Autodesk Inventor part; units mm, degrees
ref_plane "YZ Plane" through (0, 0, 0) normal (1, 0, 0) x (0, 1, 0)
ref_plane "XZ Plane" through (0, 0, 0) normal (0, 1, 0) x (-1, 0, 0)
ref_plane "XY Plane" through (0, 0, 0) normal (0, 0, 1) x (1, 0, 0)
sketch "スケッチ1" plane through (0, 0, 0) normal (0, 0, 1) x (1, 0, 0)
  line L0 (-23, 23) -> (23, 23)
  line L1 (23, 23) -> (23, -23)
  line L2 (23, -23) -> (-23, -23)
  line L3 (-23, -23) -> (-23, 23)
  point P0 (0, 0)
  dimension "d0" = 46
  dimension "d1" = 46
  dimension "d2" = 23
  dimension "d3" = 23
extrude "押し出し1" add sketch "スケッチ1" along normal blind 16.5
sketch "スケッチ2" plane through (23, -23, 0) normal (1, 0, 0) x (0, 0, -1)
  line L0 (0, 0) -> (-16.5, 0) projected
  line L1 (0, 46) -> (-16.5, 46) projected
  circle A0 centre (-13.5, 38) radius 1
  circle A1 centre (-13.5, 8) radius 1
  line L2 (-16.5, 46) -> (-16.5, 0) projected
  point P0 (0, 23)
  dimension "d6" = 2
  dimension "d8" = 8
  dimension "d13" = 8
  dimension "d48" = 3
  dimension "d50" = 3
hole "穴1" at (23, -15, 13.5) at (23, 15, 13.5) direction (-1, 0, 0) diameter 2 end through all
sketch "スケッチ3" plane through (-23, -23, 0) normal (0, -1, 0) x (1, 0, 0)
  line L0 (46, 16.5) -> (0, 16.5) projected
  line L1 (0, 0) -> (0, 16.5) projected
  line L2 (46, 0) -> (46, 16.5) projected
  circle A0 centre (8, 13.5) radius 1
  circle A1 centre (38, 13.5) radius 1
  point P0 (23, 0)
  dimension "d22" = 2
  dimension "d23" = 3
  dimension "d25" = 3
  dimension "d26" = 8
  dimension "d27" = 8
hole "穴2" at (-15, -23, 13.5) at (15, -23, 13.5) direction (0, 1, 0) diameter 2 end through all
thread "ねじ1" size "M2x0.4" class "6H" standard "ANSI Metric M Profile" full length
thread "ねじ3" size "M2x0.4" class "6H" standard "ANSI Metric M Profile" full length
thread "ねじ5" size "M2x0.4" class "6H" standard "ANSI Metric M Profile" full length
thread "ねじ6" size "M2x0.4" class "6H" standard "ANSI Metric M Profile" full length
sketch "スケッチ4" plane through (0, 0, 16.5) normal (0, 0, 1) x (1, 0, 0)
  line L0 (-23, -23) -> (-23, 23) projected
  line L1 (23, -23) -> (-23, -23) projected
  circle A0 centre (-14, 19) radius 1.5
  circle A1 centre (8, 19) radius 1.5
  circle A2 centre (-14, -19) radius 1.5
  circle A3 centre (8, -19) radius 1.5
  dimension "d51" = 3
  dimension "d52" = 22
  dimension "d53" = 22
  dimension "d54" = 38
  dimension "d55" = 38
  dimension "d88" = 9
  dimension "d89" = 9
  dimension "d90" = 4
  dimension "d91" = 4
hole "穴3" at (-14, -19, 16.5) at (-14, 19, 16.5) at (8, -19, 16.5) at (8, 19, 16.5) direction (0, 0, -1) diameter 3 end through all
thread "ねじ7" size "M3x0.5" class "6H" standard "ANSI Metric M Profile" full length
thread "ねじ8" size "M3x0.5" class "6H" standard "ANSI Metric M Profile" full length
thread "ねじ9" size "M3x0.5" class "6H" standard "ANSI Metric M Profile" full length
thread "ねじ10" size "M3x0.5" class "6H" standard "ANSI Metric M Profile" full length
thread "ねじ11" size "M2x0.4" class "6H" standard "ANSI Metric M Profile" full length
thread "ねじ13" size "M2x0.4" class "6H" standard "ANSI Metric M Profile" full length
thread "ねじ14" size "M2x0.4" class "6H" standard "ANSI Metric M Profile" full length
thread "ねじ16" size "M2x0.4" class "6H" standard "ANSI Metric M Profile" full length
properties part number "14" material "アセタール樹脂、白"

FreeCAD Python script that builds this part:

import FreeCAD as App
import Part
import Sketcher
Q = App.Units.Quantity

doc = App.newDocument("Part")
body = doc.addObject("PartDesign::Body", "Body")

# Sketch on XY plane
sketch1 = body.newObject("Sketcher::SketchObject", "Sketch")
sketch1.AttachmentSupport = (doc.getObject("XY_Plane"), [""])
sketch1.MapMode = "FlatFace"
sketch1.addGeometry([
    Part.LineSegment(App.Vector(23, 23, 0), App.Vector(-23, 23, 0)),
    Part.LineSegment(App.Vector(-23, 23, 0), App.Vector(-23, -23, 0)),
    Part.LineSegment(App.Vector(-23, -23, 0), App.Vector(23, -23, 0)),
    Part.LineSegment(App.Vector(23, -23, 0), App.Vector(23, 23, 0)),
], False)
sketch1.addConstraint([
    Sketcher.Constraint("Coincident", 0, 2, 1, 1),
    Sketcher.Constraint("Coincident", 1, 2, 2, 1),
    Sketcher.Constraint("Coincident", 2, 2, 3, 1),
    Sketcher.Constraint("Coincident", 3, 2, 0, 1),
    Sketcher.Constraint("Horizontal", 0),
    Sketcher.Constraint("Vertical", 1),
    Sketcher.Constraint("Horizontal", 2),
    Sketcher.Constraint("Vertical", 3),
    Sketcher.Constraint("Symmetric", 0, 2, 2, 2, -1, 1),
    Sketcher.Constraint("Equal", 2, 1),
    Sketcher.Constraint("DistanceX", 0, 2, 0, 1, Q("46 mm")),
])
pad1 = body.newObject("PartDesign::Pad", "Pad")
pad1.Profile = sketch1
pad1.Length = 16.5

# Sketch on YZ plane
sketch2 = body.newObject("Sketcher::SketchObject", "Sketch001")
sketch2.AttachmentSupport = (doc.getObject("YZ_Plane"), [""])
sketch2.MapMode = "FlatFace"
sketch2.AttachmentOffset = App.Placement(App.Vector(0, 0, 23), App.Rotation())
sketch2.addGeometry([
    Part.Circle(App.Vector(-15, 13.5, 0), App.Vector(0, 0, 1), 1),
    Part.Circle(App.Vector(15, 13.5, 0), App.Vector(0, 0, 1), 1),
], False)
sketch2.addConstraint([
    Sketcher.Constraint("Equal", 0, 1),
    Sketcher.Constraint("Symmetric", 0, 3, 1, 3, -2),
    Sketcher.Constraint("Diameter", 0, Q("2 mm")),
    Sketcher.Constraint("DistanceX", 0, 3, -1, 1, Q("15 mm")),
    Sketcher.Constraint("DistanceY", -1, 1, 0, 3, Q("13.5 mm")),
])
doc.recompute()
hole = body.newObject("PartDesign::Hole", "Hole")
hole.Profile = sketch2
hole.ThreadType = "None"
hole.Diameter = 2
hole.DepthType = "ThroughAll"

# Sketch on XZ plane
sketch3 = body.newObject("Sketcher::SketchObject", "Sketch002")
sketch3.AttachmentSupport = (doc.getObject("XZ_Plane"), [""])
sketch3.MapMode = "FlatFace"
sketch3.AttachmentOffset = App.Placement(App.Vector(0, 0, 23), App.Rotation())
sketch3.addGeometry([
    Part.Circle(App.Vector(-15, 13.5, 0), App.Vector(0, 0, 1), 1),
    Part.Circle(App.Vector(15, 13.5, 0), App.Vector(0, 0, 1), 1),
], False)
sketch3.addConstraint([
    Sketcher.Constraint("Equal", 0, 1),
    Sketcher.Constraint("Symmetric", 0, 3, 1, 3, -2),
    Sketcher.Constraint("Diameter", 0, Q("2 mm")),
    Sketcher.Constraint("DistanceX", 0, 3, -1, 1, Q("15 mm")),
    Sketcher.Constraint("DistanceY", -1, 1, 0, 3, Q("13.5 mm")),
])
doc.recompute()
hole2 = body.newObject("PartDesign::Hole", "Hole001")
hole2.Profile = sketch3
hole2.ThreadType = "None"
hole2.Diameter = 2
hole2.DepthType = "ThroughAll"

# Sketch on XY plane
sketch4 = body.newObject("Sketcher::SketchObject", "Sketch003")
sketch4.AttachmentSupport = (doc.getObject("XY_Plane"), [""])
sketch4.MapMode = "FlatFace"
sketch4.AttachmentOffset = App.Placement(App.Vector(0, 0, 16.5), App.Rotation())
sketch4.addGeometry([
    Part.Circle(App.Vector(-14, -19, 0), App.Vector(0, 0, 1), 1.5),
    Part.Circle(App.Vector(-14, 19, 0), App.Vector(0, 0, 1), 1.5),
    Part.Circle(App.Vector(8, -19, 0), App.Vector(0, 0, 1), 1.5),
    Part.Circle(App.Vector(8, 19, 0), App.Vector(0, 0, 1), 1.5),
], False)
sketch4.addConstraint([
    Sketcher.Constraint("Equal", 0, 1),
    Sketcher.Constraint("Equal", 1, 2),
    Sketcher.Constraint("Equal", 2, 3),
    Sketcher.Constraint("Symmetric", 0, 3, 1, 3, -1),
    Sketcher.Constraint("Symmetric", 2, 3, 3, 3, -1),
    Sketcher.Constraint("Horizontal", 0, 3, 2, 3),
    Sketcher.Constraint("Diameter", 0, Q("3 mm")),
    Sketcher.Constraint("DistanceX", 0, 3, -1, 1, Q("14 mm")),
    Sketcher.Constraint("DistanceY", 0, 3, -1, 1, Q("19 mm")),
    Sketcher.Constraint("DistanceX", -1, 1, 2, 3, Q("8 mm")),
])
doc.recompute()
hole3 = body.newObject("PartDesign::Hole", "Hole002")
hole3.Profile = sketch4
hole3.ThreadType = "None"
hole3.Diameter = 3
hole3.DepthType = "ThroughAll"

doc.recompute()
